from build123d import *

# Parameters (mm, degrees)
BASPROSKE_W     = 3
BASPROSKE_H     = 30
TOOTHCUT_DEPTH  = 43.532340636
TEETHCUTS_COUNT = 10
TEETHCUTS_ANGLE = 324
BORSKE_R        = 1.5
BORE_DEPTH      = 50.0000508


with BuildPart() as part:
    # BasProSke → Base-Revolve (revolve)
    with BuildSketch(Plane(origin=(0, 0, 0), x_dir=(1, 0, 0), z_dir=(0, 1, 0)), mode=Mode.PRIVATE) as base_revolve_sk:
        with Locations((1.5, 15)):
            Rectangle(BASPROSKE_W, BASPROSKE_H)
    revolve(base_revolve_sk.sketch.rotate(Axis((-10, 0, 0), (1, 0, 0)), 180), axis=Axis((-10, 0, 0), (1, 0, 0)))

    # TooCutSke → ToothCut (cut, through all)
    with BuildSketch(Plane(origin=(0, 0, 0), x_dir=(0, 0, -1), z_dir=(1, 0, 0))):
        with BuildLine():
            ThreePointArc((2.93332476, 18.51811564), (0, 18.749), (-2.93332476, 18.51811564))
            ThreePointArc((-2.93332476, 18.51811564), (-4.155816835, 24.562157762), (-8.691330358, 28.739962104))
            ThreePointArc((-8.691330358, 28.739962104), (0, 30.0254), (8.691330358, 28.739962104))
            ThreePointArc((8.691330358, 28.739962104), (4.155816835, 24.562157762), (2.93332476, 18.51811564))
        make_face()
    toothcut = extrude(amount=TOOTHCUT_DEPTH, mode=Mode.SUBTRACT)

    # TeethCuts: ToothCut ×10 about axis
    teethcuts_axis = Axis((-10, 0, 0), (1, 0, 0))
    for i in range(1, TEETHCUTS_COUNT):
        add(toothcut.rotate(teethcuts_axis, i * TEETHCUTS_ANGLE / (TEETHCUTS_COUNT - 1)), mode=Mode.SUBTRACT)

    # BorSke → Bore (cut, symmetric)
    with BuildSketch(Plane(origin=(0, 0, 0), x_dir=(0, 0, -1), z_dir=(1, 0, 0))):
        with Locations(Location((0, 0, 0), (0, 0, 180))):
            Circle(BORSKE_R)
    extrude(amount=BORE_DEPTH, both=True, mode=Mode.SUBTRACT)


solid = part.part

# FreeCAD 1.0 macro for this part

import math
import FreeCAD as App
import Part
import Sketcher
from FreeCAD import Vector
Q = App.Units.Quantity

doc = App.newDocument("Part")
body = doc.addObject("PartDesign::Body", "Body")

# Sketch on XZ plane
sketch1 = body.newObject("Sketcher::SketchObject", "Sketch")
sketch1.AttachmentSupport = (doc.getObject("XZ_Plane"), [""])
sketch1.MapMode = "FlatFace"
sketch1.addGeometry([
    Part.LineSegment(Vector(0, -30, 0), Vector(0, 0, 0)),
    Part.LineSegment(Vector(0, 0, 0), Vector(3, 0, 0)),
    Part.LineSegment(Vector(3, 0, 0), Vector(3, -30, 0)),
    Part.LineSegment(Vector(3, -30, 0), Vector(0, -30, 0)),
], False)
sketch1.addConstraint([
    Sketcher.Constraint("Coincident", 0, 2, 1, 1),
    Sketcher.Constraint("Coincident", 1, 2, 2, 1),
    Sketcher.Constraint("Coincident", 2, 2, 3, 1),
    Sketcher.Constraint("Coincident", 3, 2, 0, 1),
    Sketcher.Constraint("Vertical", 0),
    Sketcher.Constraint("Horizontal", 1),
    Sketcher.Constraint("Vertical", 2),
    Sketcher.Constraint("Horizontal", 3),
    Sketcher.Constraint("Coincident", 0, 2, -1, 1),
    Sketcher.Constraint("DistanceX", 1, 1, 1, 2, Q("3 mm")),
    Sketcher.Constraint("DistanceY", 0, 1, 0, 2, Q("30 mm")),
])
revolution = body.newObject("PartDesign::Revolution", "Revolution")
revolution.Profile = sketch1
revolution.ReferenceAxis = (sketch1, ["H_Axis"])
revolution.Angle = 360

# Sketch on YZ plane
sketch2 = body.newObject("Sketcher::SketchObject", "Sketch001")
sketch2.AttachmentSupport = (doc.getObject("YZ_Plane"), [""])
sketch2.MapMode = "FlatFace"
sketch2.addGeometry([
    Part.ArcOfCircle(Part.Circle(Vector(0, 0, 0), Vector(0, 0, 1), 19), math.radians(-9), math.radians(9)),
    Part.ArcOfCircle(Part.Circle(Vector(20, -13, 0), Vector(0, 0, 1), 10), math.radians(25), math.radians(97)),
    Part.ArcOfCircle(Part.Circle(Vector(0, 0, 0), Vector(0, 0, 1), 30), math.radians(-17), math.radians(17)),
    Part.ArcOfCircle(Part.Circle(Vector(20, 13, 0), Vector(0, 0, 1), 10), math.radians(-97), math.radians(-25)),
], False)
sketch2.addConstraint([
    Sketcher.Constraint("Coincident", 0, 1, 1, 2),
    Sketcher.Constraint("Coincident", 1, 1, 2, 1),
    Sketcher.Constraint("Coincident", 2, 2, 3, 2),
    Sketcher.Constraint("Coincident", 3, 1, 0, 2),
    Sketcher.Constraint("Coincident", 0, 3, -1, 1),
    Sketcher.Constraint("Coincident", 2, 3, -1, 1),
    Sketcher.Constraint("Equal", 1, 3),
    Sketcher.Constraint("Symmetric", 1, 3, 3, 3, -1),
    Sketcher.Constraint("Radius", 1, Q("10 mm")),
    Sketcher.Constraint("Radius", 0, Q("18.749 mm")),
    Sketcher.Constraint("Radius", 2, Q("30.0254 mm")),
    Sketcher.Constraint("DistanceY", 1, 1, -1, 1, Q("8.69133 mm")),
    Sketcher.Constraint("DistanceX", 0, 1, 1, 3, Q("1.13611 mm")),
])
pocket1 = body.newObject("PartDesign::Pocket", "Pocket")
pocket1.Profile = sketch2
pocket1.Type = "ThroughAll"
pocket1.Reversed = True
doc.recompute()

polarpattern = body.newObject("PartDesign::PolarPattern", "PolarPattern")
polarpattern.Originals = [pocket1]
polarpattern.Axis = (doc.getObject("X_Axis"), [""])
polarpattern.Angle = 360
polarpattern.Occurrences = 10
body.Tip = polarpattern

# Sketch on YZ plane
sketch3 = body.newObject("Sketcher::SketchObject", "Sketch002")
sketch3.AttachmentSupport = (doc.getObject("YZ_Plane"), [""])
sketch3.MapMode = "FlatFace"
sketch3.addGeometry(Part.Circle(Vector(0, 0, 0), Vector(0, 0, 1), 1.5), False)
sketch3.addConstraint([
    Sketcher.Constraint("Coincident", 0, 3, -1, 1),
    Sketcher.Constraint("Diameter", 0, Q("3 mm")),
])
pocket2 = body.newObject("PartDesign::Pocket", "Pocket001")
pocket2.Profile = sketch3
pocket2.Length = 100.000102
pocket2.Midplane = True

doc.recompute()
